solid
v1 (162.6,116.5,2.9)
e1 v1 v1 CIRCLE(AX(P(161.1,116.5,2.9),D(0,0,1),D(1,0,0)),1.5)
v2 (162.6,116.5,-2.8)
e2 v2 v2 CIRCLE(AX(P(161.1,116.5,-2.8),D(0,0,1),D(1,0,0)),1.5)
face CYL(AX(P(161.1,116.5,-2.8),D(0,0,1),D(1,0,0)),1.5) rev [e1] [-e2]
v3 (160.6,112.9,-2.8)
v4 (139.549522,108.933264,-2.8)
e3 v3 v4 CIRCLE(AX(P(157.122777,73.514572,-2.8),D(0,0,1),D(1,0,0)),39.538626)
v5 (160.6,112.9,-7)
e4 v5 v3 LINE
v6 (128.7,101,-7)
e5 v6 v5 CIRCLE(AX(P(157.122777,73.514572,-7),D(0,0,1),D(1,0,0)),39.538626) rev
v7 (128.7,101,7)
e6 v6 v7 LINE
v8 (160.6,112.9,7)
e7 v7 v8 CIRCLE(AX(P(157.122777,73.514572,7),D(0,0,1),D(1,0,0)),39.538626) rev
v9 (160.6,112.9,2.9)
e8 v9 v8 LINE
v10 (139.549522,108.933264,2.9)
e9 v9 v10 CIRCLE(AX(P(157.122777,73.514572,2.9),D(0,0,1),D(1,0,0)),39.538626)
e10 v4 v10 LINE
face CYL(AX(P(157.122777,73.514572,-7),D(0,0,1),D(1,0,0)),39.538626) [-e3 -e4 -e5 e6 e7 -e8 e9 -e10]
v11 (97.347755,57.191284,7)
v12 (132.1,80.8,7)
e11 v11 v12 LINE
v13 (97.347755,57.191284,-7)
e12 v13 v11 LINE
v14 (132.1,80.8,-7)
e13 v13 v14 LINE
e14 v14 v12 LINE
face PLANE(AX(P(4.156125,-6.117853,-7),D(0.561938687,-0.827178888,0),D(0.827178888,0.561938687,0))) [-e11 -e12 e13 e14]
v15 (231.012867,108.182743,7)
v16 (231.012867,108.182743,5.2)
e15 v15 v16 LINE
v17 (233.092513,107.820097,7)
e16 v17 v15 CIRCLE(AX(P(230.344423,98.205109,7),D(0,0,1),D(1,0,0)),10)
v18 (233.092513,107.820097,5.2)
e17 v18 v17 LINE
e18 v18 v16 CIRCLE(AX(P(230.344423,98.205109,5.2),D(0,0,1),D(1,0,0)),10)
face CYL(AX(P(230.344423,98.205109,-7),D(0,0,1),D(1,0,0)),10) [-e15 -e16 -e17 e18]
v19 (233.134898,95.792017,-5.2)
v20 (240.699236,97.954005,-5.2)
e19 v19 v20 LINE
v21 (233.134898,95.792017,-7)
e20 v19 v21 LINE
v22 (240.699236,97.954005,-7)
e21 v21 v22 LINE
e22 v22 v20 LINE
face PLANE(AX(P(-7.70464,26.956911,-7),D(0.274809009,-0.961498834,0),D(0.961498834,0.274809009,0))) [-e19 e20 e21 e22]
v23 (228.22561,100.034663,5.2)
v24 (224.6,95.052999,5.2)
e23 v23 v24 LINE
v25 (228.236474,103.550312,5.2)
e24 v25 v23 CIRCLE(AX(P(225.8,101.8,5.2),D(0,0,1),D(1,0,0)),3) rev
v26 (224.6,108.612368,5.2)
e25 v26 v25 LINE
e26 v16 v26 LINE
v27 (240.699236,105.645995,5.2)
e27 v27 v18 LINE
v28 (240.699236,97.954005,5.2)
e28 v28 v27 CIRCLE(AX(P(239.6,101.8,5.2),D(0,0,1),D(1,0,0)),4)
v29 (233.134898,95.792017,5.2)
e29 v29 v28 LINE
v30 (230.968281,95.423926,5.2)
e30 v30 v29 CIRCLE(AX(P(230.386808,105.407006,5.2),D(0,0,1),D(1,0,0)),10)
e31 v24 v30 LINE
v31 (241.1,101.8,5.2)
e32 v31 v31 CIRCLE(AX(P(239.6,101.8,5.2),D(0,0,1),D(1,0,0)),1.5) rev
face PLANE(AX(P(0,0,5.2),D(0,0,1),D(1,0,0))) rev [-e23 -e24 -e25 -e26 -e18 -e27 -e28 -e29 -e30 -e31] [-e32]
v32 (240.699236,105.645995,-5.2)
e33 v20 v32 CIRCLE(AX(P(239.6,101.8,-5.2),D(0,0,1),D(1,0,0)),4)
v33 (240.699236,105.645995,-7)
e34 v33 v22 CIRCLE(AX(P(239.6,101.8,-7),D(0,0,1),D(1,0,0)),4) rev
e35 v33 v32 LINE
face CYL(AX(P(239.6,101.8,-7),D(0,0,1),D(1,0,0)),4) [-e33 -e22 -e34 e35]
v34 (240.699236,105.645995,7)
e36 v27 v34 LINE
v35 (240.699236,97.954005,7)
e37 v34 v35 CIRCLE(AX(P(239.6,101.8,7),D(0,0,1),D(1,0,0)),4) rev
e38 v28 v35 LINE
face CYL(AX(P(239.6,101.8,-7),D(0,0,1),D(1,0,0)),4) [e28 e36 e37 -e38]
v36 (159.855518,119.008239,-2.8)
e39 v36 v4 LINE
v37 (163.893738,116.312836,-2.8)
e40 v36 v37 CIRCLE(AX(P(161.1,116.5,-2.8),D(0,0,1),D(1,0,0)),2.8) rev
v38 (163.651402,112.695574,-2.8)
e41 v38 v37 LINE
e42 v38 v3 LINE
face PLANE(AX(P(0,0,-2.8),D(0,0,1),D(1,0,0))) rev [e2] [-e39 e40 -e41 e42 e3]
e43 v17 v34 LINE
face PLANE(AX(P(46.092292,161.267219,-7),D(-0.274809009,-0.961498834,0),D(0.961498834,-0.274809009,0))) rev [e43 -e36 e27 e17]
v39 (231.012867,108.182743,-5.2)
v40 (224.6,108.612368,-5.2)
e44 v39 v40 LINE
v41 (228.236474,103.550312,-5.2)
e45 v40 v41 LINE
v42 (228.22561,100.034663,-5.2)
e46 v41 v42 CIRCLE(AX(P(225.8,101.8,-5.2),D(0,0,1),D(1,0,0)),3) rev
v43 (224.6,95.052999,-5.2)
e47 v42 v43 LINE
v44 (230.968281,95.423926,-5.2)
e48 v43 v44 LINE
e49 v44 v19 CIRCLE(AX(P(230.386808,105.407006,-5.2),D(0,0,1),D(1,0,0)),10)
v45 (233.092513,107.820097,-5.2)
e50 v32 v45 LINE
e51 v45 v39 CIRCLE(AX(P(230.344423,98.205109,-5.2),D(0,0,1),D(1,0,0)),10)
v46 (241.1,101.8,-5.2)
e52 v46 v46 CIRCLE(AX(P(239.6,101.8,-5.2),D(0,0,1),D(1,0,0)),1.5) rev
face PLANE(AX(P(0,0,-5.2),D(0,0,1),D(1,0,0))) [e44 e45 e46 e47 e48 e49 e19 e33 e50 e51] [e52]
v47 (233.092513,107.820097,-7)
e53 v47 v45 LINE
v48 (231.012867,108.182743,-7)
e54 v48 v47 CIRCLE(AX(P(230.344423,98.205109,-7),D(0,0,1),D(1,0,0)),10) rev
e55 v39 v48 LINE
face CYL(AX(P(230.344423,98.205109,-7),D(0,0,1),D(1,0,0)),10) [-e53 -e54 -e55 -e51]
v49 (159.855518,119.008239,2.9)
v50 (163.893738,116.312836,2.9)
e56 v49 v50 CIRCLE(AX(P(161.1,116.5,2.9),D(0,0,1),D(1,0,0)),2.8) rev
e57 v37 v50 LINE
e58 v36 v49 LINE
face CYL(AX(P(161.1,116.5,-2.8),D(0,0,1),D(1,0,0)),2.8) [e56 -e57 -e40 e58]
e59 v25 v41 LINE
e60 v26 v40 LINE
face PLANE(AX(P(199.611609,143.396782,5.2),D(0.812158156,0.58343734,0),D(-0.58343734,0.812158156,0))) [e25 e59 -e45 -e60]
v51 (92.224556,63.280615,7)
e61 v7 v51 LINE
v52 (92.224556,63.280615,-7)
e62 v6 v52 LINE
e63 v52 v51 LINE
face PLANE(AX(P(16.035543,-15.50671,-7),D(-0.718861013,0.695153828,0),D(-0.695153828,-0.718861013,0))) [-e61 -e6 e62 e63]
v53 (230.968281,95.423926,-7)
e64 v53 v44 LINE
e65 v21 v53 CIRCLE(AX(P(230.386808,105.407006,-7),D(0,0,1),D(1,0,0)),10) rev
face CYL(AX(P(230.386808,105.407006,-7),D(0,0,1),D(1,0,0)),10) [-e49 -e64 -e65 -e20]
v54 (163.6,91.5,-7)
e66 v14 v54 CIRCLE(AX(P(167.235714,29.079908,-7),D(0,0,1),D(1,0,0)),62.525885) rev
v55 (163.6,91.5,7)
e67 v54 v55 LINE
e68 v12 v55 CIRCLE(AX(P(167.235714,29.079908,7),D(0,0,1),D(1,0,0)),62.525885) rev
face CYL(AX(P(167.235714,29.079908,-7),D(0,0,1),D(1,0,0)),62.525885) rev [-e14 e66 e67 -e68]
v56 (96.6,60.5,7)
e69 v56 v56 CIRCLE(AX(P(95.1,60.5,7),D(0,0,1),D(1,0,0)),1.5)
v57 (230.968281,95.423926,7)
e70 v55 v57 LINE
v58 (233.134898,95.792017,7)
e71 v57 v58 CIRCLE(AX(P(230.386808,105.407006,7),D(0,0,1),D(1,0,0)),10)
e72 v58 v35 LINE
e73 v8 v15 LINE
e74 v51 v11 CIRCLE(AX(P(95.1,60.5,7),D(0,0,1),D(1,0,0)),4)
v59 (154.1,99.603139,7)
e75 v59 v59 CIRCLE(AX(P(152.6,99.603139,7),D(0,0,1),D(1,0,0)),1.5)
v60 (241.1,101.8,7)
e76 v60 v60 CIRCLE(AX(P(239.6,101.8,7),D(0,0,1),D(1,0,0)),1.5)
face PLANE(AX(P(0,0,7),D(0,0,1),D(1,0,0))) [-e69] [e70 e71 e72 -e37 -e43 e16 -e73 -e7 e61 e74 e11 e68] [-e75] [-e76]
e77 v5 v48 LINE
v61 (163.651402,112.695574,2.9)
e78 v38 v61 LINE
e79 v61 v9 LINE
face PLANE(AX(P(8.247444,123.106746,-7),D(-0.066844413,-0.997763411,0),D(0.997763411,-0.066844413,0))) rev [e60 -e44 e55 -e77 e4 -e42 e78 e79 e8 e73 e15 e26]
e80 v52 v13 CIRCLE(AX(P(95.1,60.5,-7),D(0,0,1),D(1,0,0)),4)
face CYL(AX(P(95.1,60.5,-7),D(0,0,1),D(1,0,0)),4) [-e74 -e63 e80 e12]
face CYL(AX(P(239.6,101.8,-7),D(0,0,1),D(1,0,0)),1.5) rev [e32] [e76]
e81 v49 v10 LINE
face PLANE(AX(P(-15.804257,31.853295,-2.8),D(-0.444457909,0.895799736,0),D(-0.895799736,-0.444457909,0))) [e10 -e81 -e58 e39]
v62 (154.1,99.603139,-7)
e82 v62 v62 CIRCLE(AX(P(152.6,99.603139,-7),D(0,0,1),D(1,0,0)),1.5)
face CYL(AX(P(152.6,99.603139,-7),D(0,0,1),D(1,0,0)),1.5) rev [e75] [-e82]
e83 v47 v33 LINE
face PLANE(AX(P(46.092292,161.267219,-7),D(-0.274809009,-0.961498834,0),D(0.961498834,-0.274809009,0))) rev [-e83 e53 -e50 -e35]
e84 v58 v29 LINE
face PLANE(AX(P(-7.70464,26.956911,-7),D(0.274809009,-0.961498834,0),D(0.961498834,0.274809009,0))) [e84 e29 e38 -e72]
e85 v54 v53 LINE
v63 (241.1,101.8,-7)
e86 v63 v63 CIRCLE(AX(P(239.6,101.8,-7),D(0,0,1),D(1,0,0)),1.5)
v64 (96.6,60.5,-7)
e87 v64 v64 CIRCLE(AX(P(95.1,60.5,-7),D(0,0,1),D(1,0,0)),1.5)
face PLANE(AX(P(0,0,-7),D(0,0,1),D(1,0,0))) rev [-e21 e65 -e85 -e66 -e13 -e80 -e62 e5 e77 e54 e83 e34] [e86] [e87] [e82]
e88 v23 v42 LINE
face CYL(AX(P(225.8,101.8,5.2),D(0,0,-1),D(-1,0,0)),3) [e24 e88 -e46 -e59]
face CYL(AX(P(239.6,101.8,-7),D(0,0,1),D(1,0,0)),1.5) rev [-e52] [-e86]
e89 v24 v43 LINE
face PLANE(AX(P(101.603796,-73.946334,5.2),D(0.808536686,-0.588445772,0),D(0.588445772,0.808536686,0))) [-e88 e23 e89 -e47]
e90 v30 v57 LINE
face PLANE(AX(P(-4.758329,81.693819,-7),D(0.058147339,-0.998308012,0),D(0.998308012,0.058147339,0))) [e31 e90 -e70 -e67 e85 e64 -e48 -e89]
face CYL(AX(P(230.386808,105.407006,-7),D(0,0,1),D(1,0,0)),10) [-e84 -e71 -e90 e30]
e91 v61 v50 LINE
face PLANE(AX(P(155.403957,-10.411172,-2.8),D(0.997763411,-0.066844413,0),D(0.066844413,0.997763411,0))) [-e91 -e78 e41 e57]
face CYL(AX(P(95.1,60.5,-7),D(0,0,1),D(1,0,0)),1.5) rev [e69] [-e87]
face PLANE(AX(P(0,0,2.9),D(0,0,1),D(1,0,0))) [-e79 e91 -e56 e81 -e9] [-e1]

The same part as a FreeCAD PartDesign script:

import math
import FreeCAD as App
import Part
import Sketcher

V = App.Vector
Q = App.Units.Quantity


def edges_at(feature, points):
    """Names of the edges that pass closest to the given points."""
    edges = feature.Shape.Edges
    near = lambda p: min(range(len(edges)), key=lambda i: edges[i].distToShape(Part.Vertex(*p))[0])
    return sorted({f"Edge{near(p) + 1}" for p in points})

doc = App.newDocument("Part")
body = doc.addObject("PartDesign::Body", "Body")

# Sketch on XY plane
sketch1 = body.newObject("Sketcher::SketchObject", "Sketch")
sketch1.AttachmentSupport = (doc.getObject("XY_Plane"), [""])
sketch1.MapMode = "FlatFace"
sketch1.addGeometry(Part.ArcOfCircle(Part.Circle(V(239.6, 101.8, 0), V(0, 0, 1), 4), math.radians(-74), math.radians(74)), False)
sketch1.addGeometry(Part.LineSegment(V(240.7, 105.6, 0), V(232.1, 108.1, 0)), False)
sketch1.addGeometry(Part.LineSegment(V(232.1, 108.1, 0), V(160.6, 112.9, 0)), False)
sketch1.addGeometry(Part.ArcOfCircle(Part.Circle(V(157.1, 73.5, 0), V(0, 0, 1), 39.5), math.radians(85), math.radians(136)), False)
sketch1.addGeometry(Part.LineSegment(V(128.7, 101, 0), V(92.2, 63.3, 0)), False)
sketch1.addGeometry(Part.ArcOfCircle(Part.Circle(V(95.1, 60.5, 0), V(0, 0, 1), 4), math.radians(136), math.radians(304)), False)
sketch1.addGeometry(Part.LineSegment(V(97.3, 57.2, 0), V(132.1, 80.8, 0)), False)
sketch1.addGeometry(Part.ArcOfCircle(Part.Circle(V(167.2, 29.1, 0), V(0, 0, 1), 62.5), math.radians(93), math.radians(124)), False)
sketch1.addGeometry(Part.LineSegment(V(163.6, 91.5, 0), V(232.1, 95.5, 0)), False)
sketch1.addGeometry(Part.LineSegment(V(232.1, 95.5, 0), V(240.7, 98, 0)), False)
sketch1.addGeometry(Part.Circle(V(95.1, 60.5, 0), V(0, 0, 1), 1.5), False)
sketch1.addGeometry(Part.Circle(V(239.6, 101.8, 0), V(0, 0, 1), 1.5), False)
sketch1.addGeometry(Part.Circle(V(152.6, 99.6, 0), V(0, 0, 1), 1.5), False)
sketch1.addConstraint(Sketcher.Constraint("Tangent", 0, 2, 1, 1))
sketch1.addConstraint(Sketcher.Constraint("Coincident", 1, 2, 2, 1))
sketch1.addConstraint(Sketcher.Constraint("Coincident", 2, 2, 3, 1))
sketch1.addConstraint(Sketcher.Constraint("Tangent", 3, 2, 4, 1))
sketch1.addConstraint(Sketcher.Constraint("Tangent", 4, 2, 5, 1))
sketch1.addConstraint(Sketcher.Constraint("Tangent", 5, 2, 6, 1))
sketch1.addConstraint(Sketcher.Constraint("Tangent", 6, 2, 7, 2))
sketch1.addConstraint(Sketcher.Constraint("Tangent", 7, 1, 8, 1))
sketch1.addConstraint(Sketcher.Constraint("Coincident", 8, 2, 9, 1))
sketch1.addConstraint(Sketcher.Constraint("Tangent", 9, 2, 0, 1))
sketch1.addConstraint(Sketcher.Constraint("Coincident", 10, 3, 5, 3))
sketch1.addConstraint(Sketcher.Constraint("Coincident", 11, 3, 0, 3))
sketch1.addConstraint(Sketcher.Constraint("Equal", 0, 5))
sketch1.addConstraint(Sketcher.Constraint("Equal", 10, 11))
sketch1.addConstraint(Sketcher.Constraint("Equal", 11, 12))
sketch1.addConstraint(Sketcher.Constraint("Vertical", 1, 2, 8, 2))
sketch1.addConstraint(Sketcher.Constraint("Vertical", 0, 2, 9, 2))
sketch1.addConstraint(Sketcher.Constraint("Diameter", 10, Q("3 mm")))
sketch1.addConstraint(Sketcher.Constraint("Radius", 0, Q("4 mm")))
sketch1.addConstraint(Sketcher.Constraint("DistanceY", -1, 1, 3, 2, Q("101 mm")))
sketch1.addConstraint(Sketcher.Constraint("DistanceX", 12, 3, 0, 3, Q("87 mm")))
sketch1.addConstraint(Sketcher.Constraint("DistanceX", 12, 3, 2, 2, Q("8 mm")))
sketch1.addConstraint(Sketcher.Constraint("DistanceX", 5, 3, 6, 2, Q("37 mm")))
sketch1.addConstraint(Sketcher.Constraint("DistanceX", 12, 3, 7, 1, Q("11 mm")))
sketch1.addConstraint(Sketcher.Constraint("DistanceX", -1, 1, 0, 3, Q("239.6 mm")))
sketch1.addConstraint(Sketcher.Constraint("DistanceY", -1, 1, 0, 3, Q("101.8 mm")))
sketch1.addConstraint(Sketcher.Constraint("DistanceX", -1, 1, 5, 3, Q("95.1 mm")))
sketch1.addConstraint(Sketcher.Constraint("DistanceY", -1, 1, 5, 3, Q("60.5 mm")))
sketch1.addConstraint(Sketcher.Constraint("DistanceY", -1, 1, 2, 2, Q("112.9 mm")))
sketch1.addConstraint(Sketcher.Constraint("DistanceX", -1, 1, 3, 2, Q("128.7 mm")))
sketch1.addConstraint(Sketcher.Constraint("DistanceY", -1, 1, 6, 2, Q("80.8 mm")))
sketch1.addConstraint(Sketcher.Constraint("DistanceY", -1, 1, 7, 1, Q("91.5 mm")))
sketch1.addConstraint(Sketcher.Constraint("DistanceX", 1, 2, 0, 2, Q("8.6273 mm")))
sketch1.addConstraint(Sketcher.Constraint("DistanceY", -1, 1, 12, 3, Q("99.603139 mm")))
pad1 = body.newObject("PartDesign::Pad", "Pad")
pad1.Profile = sketch1
pad1.Type = "TwoLengths"
pad1.Length = 7
pad1.Length2 = 7
doc.recompute()

fillet = body.newObject("PartDesign::Fillet", "Fillet")
fillet.Base = (pad1, edges_at(pad1, [(232.072, 95.488, 0), (232.072, 108.112, 0)]))
fillet.Radius = 10

# Sketch on XY plane
sketch2 = body.newObject("Sketcher::SketchObject", "Sketch001")
sketch2.AttachmentSupport = (doc.getObject("XY_Plane"), [""])
sketch2.MapMode = "FlatFace"
sketch2.addGeometry(Part.LineSegment(V(160.6, 112.9, 0), V(163.7, 112.7, 0)), False)
sketch2.addGeometry(Part.LineSegment(V(163.7, 112.7, 0), V(163.9, 116.3, 0)), False)
sketch2.addGeometry(Part.ArcOfCircle(Part.Circle(V(161.1, 116.5, 0), V(0, 0, 1), 2.8), math.radians(-4), math.radians(116)), False)
sketch2.addGeometry(Part.LineSegment(V(159.9, 119, 0), V(139.5, 108.9, 0)), False)
sketch2.addGeometry(Part.ArcOfCircle(Part.Circle(V(157.1, 73.5, 0), V(0, 0, 1), 39.5), math.radians(85), math.radians(116)), False)
sketch2.addGeometry(Part.Circle(V(161.1, 116.5, 0), V(0, 0, 1), 1.5), False)
sketch2.addConstraint(Sketcher.Constraint("Coincident", 0, 2, 1, 1))
sketch2.addConstraint(Sketcher.Constraint("Tangent", 1, 2, 2, 1))
sketch2.addConstraint(Sketcher.Constraint("Tangent", 2, 2, 3, 1))
sketch2.addConstraint(Sketcher.Constraint("Tangent", 3, 2, 4, 2))
sketch2.addConstraint(Sketcher.Constraint("Coincident", 4, 1, 0, 1))
sketch2.addConstraint(Sketcher.Constraint("Coincident", 5, 3, 2, 3))
sketch2.addConstraint(Sketcher.Constraint("Perpendicular", 0, 1))
sketch2.addConstraint(Sketcher.Constraint("Diameter", 5, Q("3 mm")))
sketch2.addConstraint(Sketcher.Constraint("Radius", 2, Q("2.8 mm")))
sketch2.addConstraint(Sketcher.Constraint("DistanceX", -1, 1, 2, 3, Q("161.1 mm")))
sketch2.addConstraint(Sketcher.Constraint("DistanceY", -1, 1, 2, 3, Q("116.5 mm")))
sketch2.addConstraint(Sketcher.Constraint("DistanceX", -1, 1, 4, 1, Q("160.6 mm")))
sketch2.addConstraint(Sketcher.Constraint("DistanceY", -1, 1, 4, 1, Q("112.9 mm")))
sketch2.addConstraint(Sketcher.Constraint("Radius", 4, Q("39.538626 mm")))
sketch2.addConstraint(Sketcher.Constraint("DistanceY", 4, 3, 0, 2, Q("39.181001 mm")))
sketch2.addConstraint(Sketcher.Constraint("DistanceX", -1, 1, 0, 2, Q("163.651402 mm")))
pad2 = body.newObject("PartDesign::Pad", "Pad001")
pad2.Profile = sketch2
pad2.Type = "TwoLengths"
pad2.Length = 2.9
pad2.Length2 = 2.8

# Sketch on XY plane
sketch3 = body.newObject("Sketcher::SketchObject", "Sketch002")
sketch3.AttachmentSupport = (doc.getObject("XY_Plane"), [""])
sketch3.MapMode = "FlatFace"
sketch3.addGeometry(Part.LineSegment(V(231, 108.2, 0), V(224.6, 108.6, 0)), False)
sketch3.addGeometry(Part.LineSegment(V(224.6, 108.6, 0), V(228.2, 103.6, 0)), False)
sketch3.addGeometry(Part.ArcOfCircle(Part.Circle(V(225.8, 101.8, 0), V(0, 0, 1), 3), math.radians(-36), math.radians(36)), False)
sketch3.addGeometry(Part.LineSegment(V(228.2, 100, 0), V(224.6, 95.1, 0)), False)
sketch3.addGeometry(Part.LineSegment(V(224.6, 95.1, 0), V(231, 95.4, 0)), False)
sketch3.addGeometry(Part.ArcOfCircle(Part.Circle(V(230.4, 105.4, 0), V(0, 0, 1), 10), math.radians(-86.67), math.radians(-74.05)), False)
sketch3.addGeometry(Part.LineSegment(V(233.1, 95.8, 0), V(240.7, 98, 0)), False)
sketch3.addGeometry(Part.ArcOfCircle(Part.Circle(V(239.6, 101.8, 0), V(0, 0, 1), 4), math.radians(-74), math.radians(74)), False)
sketch3.addGeometry(Part.LineSegment(V(240.7, 105.6, 0), V(233.1, 107.8, 0)), False)
sketch3.addGeometry(Part.ArcOfCircle(Part.Circle(V(230.3, 98.2, 0), V(0, 0, 1), 10), math.radians(74.05), math.radians(86.17)), False)
sketch3.addConstraint(Sketcher.Constraint("Coincident", 0, 2, 1, 1))
sketch3.addConstraint(Sketcher.Constraint("Tangent", 1, 2, 2, 2))
sketch3.addConstraint(Sketcher.Constraint("Tangent", 2, 1, 3, 1))
sketch3.addConstraint(Sketcher.Constraint("Coincident", 3, 2, 4, 1))
sketch3.addConstraint(Sketcher.Constraint("Tangent", 4, 2, 5, 1))
sketch3.addConstraint(Sketcher.Constraint("Tangent", 5, 2, 6, 1))
sketch3.addConstraint(Sketcher.Constraint("Tangent", 6, 2, 7, 1))
sketch3.addConstraint(Sketcher.Constraint("Tangent", 7, 2, 8, 1))
sketch3.addConstraint(Sketcher.Constraint("Tangent", 8, 2, 9, 1))
sketch3.addConstraint(Sketcher.Constraint("Tangent", 9, 2, 0, 1))
sketch3.addConstraint(Sketcher.Constraint("Equal", 5, 9))
sketch3.addConstraint(Sketcher.Constraint("Horizontal", 2, 3, 7, 3))
sketch3.addConstraint(Sketcher.Constraint("Vertical", 0, 2, 3, 2))
sketch3.addConstraint(Sketcher.Constraint("Vertical", 6, 2, 7, 2))
sketch3.addConstraint(Sketcher.Constraint("Radius", 2, Q("3 mm")))
sketch3.addConstraint(Sketcher.Constraint("Radius", 5, Q("10 mm")))
sketch3.addConstraint(Sketcher.Constraint("Radius", 7, Q("4 mm")))
sketch3.addConstraint(Sketcher.Constraint("DistanceX", 0, 2, 7, 3, Q("15 mm")))
sketch3.addConstraint(Sketcher.Constraint("DistanceX", -1, 1, 2, 3, Q("225.8 mm")))
sketch3.addConstraint(Sketcher.Constraint("DistanceY", -1, 1, 2, 3, Q("101.8 mm")))
sketch3.addConstraint(Sketcher.Constraint("DistanceX", -1, 1, 7, 3, Q("239.6 mm")))
sketch3.addConstraint(Sketcher.Constraint("DistanceY", -1, 1, 3, 2, Q("95.052999 mm")))
sketch3.addConstraint(Sketcher.Constraint("DistanceY", 7, 2, 8, 2, Q("2.174102 mm")))
sketch3.addConstraint(Sketcher.Constraint("Distance", 0, Q("6.427242 mm")))
sketch3.addConstraint(Sketcher.Constraint("Distance", 8, Q("7.911318 mm")))
sketch3.addConstraint(Sketcher.Constraint("DistanceX", -1, 1, 4, 2, Q("230.968281 mm")))
pocket1 = body.newObject("PartDesign::Pocket", "Pocket")
pocket1.Profile = sketch3
pocket1.Type = "TwoLengths"
pocket1.Length = 5.2
pocket1.Length2 = 5.2
pocket1.Reversed = True

doc.recompute()
